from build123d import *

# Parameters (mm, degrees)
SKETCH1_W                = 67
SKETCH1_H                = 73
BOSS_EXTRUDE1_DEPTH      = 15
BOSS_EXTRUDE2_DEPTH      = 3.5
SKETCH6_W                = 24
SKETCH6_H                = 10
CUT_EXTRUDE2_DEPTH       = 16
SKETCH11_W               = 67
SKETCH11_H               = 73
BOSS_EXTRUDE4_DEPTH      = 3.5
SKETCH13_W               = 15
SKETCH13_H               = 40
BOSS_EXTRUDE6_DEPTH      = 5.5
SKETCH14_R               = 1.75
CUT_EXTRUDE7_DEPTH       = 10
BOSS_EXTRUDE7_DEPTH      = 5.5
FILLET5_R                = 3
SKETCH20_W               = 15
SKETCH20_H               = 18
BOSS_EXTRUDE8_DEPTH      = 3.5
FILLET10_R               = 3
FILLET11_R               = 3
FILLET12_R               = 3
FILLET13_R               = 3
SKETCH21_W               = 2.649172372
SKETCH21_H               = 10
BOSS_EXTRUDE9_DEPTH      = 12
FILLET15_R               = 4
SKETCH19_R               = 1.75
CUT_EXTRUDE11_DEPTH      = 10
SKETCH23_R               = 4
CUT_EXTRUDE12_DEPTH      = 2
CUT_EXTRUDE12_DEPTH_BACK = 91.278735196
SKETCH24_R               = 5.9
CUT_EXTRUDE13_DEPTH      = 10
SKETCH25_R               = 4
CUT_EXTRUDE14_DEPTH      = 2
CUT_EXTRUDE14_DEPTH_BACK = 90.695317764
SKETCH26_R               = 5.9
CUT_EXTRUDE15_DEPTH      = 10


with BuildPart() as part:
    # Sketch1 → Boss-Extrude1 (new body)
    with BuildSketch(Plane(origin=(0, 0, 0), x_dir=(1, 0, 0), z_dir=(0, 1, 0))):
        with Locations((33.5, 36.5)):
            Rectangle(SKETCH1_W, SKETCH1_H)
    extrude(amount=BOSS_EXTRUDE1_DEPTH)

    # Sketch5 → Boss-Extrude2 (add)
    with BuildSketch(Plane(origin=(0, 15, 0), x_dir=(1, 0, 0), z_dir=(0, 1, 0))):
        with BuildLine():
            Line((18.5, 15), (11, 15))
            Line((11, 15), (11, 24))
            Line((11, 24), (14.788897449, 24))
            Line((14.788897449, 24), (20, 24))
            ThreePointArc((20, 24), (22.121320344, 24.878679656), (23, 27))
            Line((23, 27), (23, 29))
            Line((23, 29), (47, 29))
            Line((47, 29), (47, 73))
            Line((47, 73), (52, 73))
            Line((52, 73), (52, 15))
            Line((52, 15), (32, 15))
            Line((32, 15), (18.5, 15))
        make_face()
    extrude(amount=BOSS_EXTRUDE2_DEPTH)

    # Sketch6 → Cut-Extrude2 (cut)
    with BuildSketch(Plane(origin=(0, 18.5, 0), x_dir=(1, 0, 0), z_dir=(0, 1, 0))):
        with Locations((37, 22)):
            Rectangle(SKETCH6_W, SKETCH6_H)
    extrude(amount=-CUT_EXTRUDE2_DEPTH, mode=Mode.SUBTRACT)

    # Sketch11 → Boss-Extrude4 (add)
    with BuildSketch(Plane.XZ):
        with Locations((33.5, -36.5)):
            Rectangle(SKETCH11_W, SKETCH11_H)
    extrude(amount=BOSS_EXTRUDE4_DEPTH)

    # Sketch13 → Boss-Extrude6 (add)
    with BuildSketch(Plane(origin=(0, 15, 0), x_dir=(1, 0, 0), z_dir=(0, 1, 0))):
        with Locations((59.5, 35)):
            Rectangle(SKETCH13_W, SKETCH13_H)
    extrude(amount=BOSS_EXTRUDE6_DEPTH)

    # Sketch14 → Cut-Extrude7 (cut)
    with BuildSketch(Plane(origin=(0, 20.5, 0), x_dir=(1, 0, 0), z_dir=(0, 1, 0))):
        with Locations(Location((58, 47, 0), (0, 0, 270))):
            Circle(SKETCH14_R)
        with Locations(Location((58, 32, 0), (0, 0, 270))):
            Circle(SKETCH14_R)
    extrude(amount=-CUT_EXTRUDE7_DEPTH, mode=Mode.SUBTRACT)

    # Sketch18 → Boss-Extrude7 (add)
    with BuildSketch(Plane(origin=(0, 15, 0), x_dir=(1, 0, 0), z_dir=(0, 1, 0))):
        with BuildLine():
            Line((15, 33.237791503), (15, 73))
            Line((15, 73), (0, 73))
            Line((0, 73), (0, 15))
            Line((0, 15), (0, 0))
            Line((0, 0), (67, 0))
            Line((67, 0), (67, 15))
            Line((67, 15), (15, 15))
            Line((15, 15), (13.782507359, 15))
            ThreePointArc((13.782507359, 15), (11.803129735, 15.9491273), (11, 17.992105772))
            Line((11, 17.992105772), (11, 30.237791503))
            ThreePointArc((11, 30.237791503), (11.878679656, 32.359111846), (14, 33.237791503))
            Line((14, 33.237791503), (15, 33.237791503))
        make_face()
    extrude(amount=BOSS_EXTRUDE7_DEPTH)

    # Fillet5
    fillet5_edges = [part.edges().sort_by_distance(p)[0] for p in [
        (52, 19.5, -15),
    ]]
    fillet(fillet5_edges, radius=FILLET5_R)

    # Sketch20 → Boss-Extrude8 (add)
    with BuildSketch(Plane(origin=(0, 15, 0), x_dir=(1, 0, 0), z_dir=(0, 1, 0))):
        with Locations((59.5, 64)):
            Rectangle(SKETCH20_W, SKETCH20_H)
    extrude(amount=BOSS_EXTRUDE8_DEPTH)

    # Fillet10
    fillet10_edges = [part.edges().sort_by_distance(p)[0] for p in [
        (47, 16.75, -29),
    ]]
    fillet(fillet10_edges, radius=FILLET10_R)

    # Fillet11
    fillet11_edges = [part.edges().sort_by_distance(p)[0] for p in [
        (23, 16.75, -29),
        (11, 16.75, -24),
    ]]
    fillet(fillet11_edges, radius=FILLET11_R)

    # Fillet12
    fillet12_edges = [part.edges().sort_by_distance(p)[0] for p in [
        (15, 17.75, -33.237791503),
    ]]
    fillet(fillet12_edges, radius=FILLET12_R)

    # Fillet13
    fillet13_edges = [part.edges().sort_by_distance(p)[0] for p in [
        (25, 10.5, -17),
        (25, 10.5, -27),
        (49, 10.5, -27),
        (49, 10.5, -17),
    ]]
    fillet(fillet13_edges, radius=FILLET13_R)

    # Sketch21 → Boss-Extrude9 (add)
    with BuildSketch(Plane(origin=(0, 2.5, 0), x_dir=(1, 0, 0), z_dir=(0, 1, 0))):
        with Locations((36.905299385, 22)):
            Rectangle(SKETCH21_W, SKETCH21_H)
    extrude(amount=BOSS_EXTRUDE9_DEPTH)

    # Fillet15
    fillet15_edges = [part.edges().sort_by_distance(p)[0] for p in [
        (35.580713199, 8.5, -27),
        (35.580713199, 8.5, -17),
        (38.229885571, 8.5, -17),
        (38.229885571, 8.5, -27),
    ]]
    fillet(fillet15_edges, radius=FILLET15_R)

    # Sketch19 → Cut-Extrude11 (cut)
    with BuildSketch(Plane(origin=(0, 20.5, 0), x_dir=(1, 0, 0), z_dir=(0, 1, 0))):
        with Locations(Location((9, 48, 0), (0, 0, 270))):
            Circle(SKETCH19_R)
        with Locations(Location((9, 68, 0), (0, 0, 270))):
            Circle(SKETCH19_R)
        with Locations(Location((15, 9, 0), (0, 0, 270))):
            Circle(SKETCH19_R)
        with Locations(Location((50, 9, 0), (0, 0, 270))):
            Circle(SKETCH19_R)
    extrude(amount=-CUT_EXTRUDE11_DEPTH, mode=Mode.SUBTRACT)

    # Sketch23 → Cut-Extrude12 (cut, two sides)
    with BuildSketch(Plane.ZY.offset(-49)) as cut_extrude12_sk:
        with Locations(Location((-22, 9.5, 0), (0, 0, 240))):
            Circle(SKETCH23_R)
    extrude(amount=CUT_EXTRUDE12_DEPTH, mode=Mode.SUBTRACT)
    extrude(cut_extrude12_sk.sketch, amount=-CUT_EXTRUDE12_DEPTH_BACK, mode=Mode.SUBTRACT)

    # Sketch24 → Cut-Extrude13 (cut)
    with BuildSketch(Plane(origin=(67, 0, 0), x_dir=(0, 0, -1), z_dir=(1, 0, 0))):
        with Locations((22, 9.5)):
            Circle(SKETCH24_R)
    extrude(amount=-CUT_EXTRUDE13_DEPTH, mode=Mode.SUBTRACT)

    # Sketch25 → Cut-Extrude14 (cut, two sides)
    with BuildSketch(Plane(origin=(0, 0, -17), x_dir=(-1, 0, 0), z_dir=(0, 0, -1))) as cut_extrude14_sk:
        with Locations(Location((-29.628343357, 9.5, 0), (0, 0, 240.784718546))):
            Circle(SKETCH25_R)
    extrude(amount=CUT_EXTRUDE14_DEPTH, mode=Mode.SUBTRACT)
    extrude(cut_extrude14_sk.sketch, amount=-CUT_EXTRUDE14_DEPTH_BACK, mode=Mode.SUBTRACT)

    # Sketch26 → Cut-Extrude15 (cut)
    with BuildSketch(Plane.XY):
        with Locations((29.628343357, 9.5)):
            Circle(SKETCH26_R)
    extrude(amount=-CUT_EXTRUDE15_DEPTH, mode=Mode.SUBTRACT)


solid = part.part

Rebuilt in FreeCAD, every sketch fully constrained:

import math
import FreeCAD as App
import Part
import Sketcher

V = App.Vector


def edges_at(feature, points):
    """Names of the edges that pass closest to the given points."""
    edges = feature.Shape.Edges
    near = lambda p: min(range(len(edges)), key=lambda i: edges[i].distToShape(Part.Vertex(*p))[0])
    return sorted({f"Edge{near(p) + 1}" for p in points})


def add_polygon(sketch, points):
    """Adds a closed chain of lines whose ends are joined by coincident constraints."""
    first, n = sketch.GeometryCount, len(points)
    for a, b in zip(points, points[1:] + points[:1]):
        sketch.addGeometry(Part.LineSegment(App.Vector(*a, 0), App.Vector(*b, 0)), False)
    for i in range(n):
        sketch.addConstraint(Sketcher.Constraint("Coincident", first + i, 2, first + (i + 1) % n, 1))

doc = App.newDocument("Part")
body = doc.addObject("PartDesign::Body", "Body")

# Sketch on XZ plane
sketch1 = body.newObject("Sketcher::SketchObject", "Sketch")
sketch1.AttachmentSupport = (doc.getObject("XZ_Plane"), [""])
sketch1.MapMode = "FlatFace"
add_polygon(sketch1, [(0, -73), (0, 0), (67, 0), (67, -73)])  # lines 0-3
sketch1.addConstraint([
    Sketcher.Constraint("Vertical", 0),
    Sketcher.Constraint("Horizontal", 1),
    Sketcher.Constraint("Vertical", 2),
    Sketcher.Constraint("Horizontal", 3),
    Sketcher.Constraint("Coincident", 0, 2, -1, 1),
    Sketcher.Constraint("DistanceX", 1, 1, 1, 2, 67.0),
    Sketcher.Constraint("DistanceY", 0, 1, 0, 2, 73.0),
])
pad1 = body.newObject("PartDesign::Pad", "Pad")
pad1.Profile = sketch1
pad1.Length = 15
pad1.Reversed = True

# Sketch on XZ plane
sketch2 = body.newObject("Sketcher::SketchObject", "Sketch001")
sketch2.AttachmentSupport = (doc.getObject("XZ_Plane"), [""])
sketch2.MapMode = "FlatFace"
sketch2.AttachmentOffset = App.Placement(V(0, 0, -15), App.Rotation())
sketch2.addGeometry([
    Part.LineSegment(V(11, -24, 0), V(11, -15, 0)),  # 0
    Part.LineSegment(V(11, -15, 0), V(52, -15, 0)),  # 1
    Part.LineSegment(V(52, -15, 0), V(52, -73, 0)),  # 2
    Part.LineSegment(V(52, -73, 0), V(47, -73, 0)),  # 3
    Part.LineSegment(V(47, -73, 0), V(47, -29, 0)),  # 4
    Part.LineSegment(V(47, -29, 0), V(23, -29, 0)),  # 5
    Part.LineSegment(V(23, -29, 0), V(23, -27, 0)),  # 6
    Part.ArcOfCircle(Part.Circle(V(20, -27, 0), V(0, 0, 1), 3), math.radians(0), math.radians(90)),  # 7
    Part.LineSegment(V(20, -24, 0), V(11, -24, 0)),  # 8
], False)
sketch2.addConstraint([
    Sketcher.Constraint("Coincident", 0, 2, 1, 1),
    Sketcher.Constraint("Coincident", 1, 2, 2, 1),
    Sketcher.Constraint("Coincident", 2, 2, 3, 1),
    Sketcher.Constraint("Coincident", 3, 2, 4, 1),
    Sketcher.Constraint("Coincident", 4, 2, 5, 1),
    Sketcher.Constraint("Coincident", 5, 2, 6, 1),
    Sketcher.Constraint("Tangent", 6, 2, 7, 1),
    Sketcher.Constraint("Tangent", 7, 2, 8, 1),
    Sketcher.Constraint("Coincident", 8, 2, 0, 1),
    Sketcher.Constraint("Vertical", 0),
    Sketcher.Constraint("Horizontal", 1),
    Sketcher.Constraint("Vertical", 2),
    Sketcher.Constraint("Horizontal", 3),
    Sketcher.Constraint("Vertical", 4),
    Sketcher.Constraint("Horizontal", 5),
    Sketcher.Constraint("Vertical", 6),
    Sketcher.Constraint("Horizontal", 8),
    Sketcher.Constraint("Equal", 8, 0),
    Sketcher.Constraint("Radius", 7, 3.0),
    Sketcher.Constraint("DistanceX", 1, 1, 1, 2, 41.0),
    Sketcher.Constraint("DistanceX", 3, 2, 3, 1, 5.0),
    Sketcher.Constraint("DistanceX", 5, 2, 5, 1, 24.0),
    Sketcher.Constraint("DistanceY", 2, 2, 2, 1, 58.0),
    Sketcher.Constraint("DistanceY", 4, 1, 4, 2, 44.0),
    Sketcher.Constraint("DistanceX", -1, 1, 7, 3, 20.0),
    Sketcher.Constraint("DistanceY", 7, 3, -1, 1, 27.0),
])
pad2 = body.newObject("PartDesign::Pad", "Pad001")
pad2.Profile = sketch2
pad2.Length = 3.5
pad2.Reversed = True

# Sketch on XZ plane
sketch3 = body.newObject("Sketcher::SketchObject", "Sketch002")
sketch3.AttachmentSupport = (doc.getObject("XZ_Plane"), [""])
sketch3.MapMode = "FlatFace"
sketch3.AttachmentOffset = App.Placement(V(0, 0, -18.5), App.Rotation())
add_polygon(sketch3, [(25, -27), (25, -17), (49, -17), (49, -27)])  # lines 0-3
sketch3.addConstraint([
    Sketcher.Constraint("Vertical", 0),
    Sketcher.Constraint("Horizontal", 1),
    Sketcher.Constraint("Vertical", 2),
    Sketcher.Constraint("Horizontal", 3),
    Sketcher.Constraint("DistanceX", 1, 1, 1, 2, 24.0),
    Sketcher.Constraint("DistanceY", 0, 1, 0, 2, 10.0),
    Sketcher.Constraint("DistanceX", -1, 1, 0, 2, 25.0),
    Sketcher.Constraint("DistanceY", 0, 2, -1, 1, 17.0),
])
pocket1 = body.newObject("PartDesign::Pocket", "Pocket")
pocket1.Profile = sketch3
pocket1.Length = 16
pocket1.Reversed = True

# Sketch on XZ plane
sketch4 = body.newObject("Sketcher::SketchObject", "Sketch003")
sketch4.AttachmentSupport = (doc.getObject("XZ_Plane"), [""])
sketch4.MapMode = "FlatFace"
add_polygon(sketch4, [(0, 0), (0, -73), (67, -73), (67, 0)])  # lines 0-3
sketch4.addConstraint([
    Sketcher.Constraint("Vertical", 0),
    Sketcher.Constraint("Horizontal", 1),
    Sketcher.Constraint("Vertical", 2),
    Sketcher.Constraint("Horizontal", 3),
    Sketcher.Constraint("Coincident", 3, 2, -1, 1),
    Sketcher.Constraint("DistanceX", 1, 1, 1, 2, 67.0),
    Sketcher.Constraint("DistanceY", 0, 2, 0, 1, 73.0),
])
pad3 = body.newObject("PartDesign::Pad", "Pad002")
pad3.Profile = sketch4
pad3.Length = 3.5

# Sketch on XZ plane
sketch5 = body.newObject("Sketcher::SketchObject", "Sketch004")
sketch5.AttachmentSupport = (doc.getObject("XZ_Plane"), [""])
sketch5.MapMode = "FlatFace"
sketch5.AttachmentOffset = App.Placement(V(0, 0, -15), App.Rotation())
add_polygon(sketch5, [(52, -55), (52, -15), (67, -15), (67, -55)])  # lines 0-3
sketch5.addConstraint([
    Sketcher.Constraint("Vertical", 0),
    Sketcher.Constraint("Horizontal", 1),
    Sketcher.Constraint("Vertical", 2),
    Sketcher.Constraint("Horizontal", 3),
    Sketcher.Constraint("DistanceX", 1, 1, 1, 2, 15.0),
    Sketcher.Constraint("DistanceY", 0, 1, 0, 2, 40.0),
    Sketcher.Constraint("DistanceX", -1, 1, 0, 2, 52.0),
    Sketcher.Constraint("DistanceY", 0, 2, -1, 1, 15.0),
])
pad4 = body.newObject("PartDesign::Pad", "Pad003")
pad4.Profile = sketch5
pad4.Length = 5.5
pad4.Reversed = True

# Sketch on XZ plane
sketch6 = body.newObject("Sketcher::SketchObject", "Sketch005")
sketch6.AttachmentSupport = (doc.getObject("XZ_Plane"), [""])
sketch6.MapMode = "FlatFace"
sketch6.AttachmentOffset = App.Placement(V(0, 0, -20.5), App.Rotation())
sketch6.addGeometry([
    Part.Circle(V(58, -47, 0), V(0, 0, 1), 1.8),
    Part.Circle(V(58, -32, 0), V(0, 0, 1), 1.8),
], False)
sketch6.addConstraint([
    Sketcher.Constraint("Equal", 0, 1),
    Sketcher.Constraint("Vertical", 0, 3, 1, 3),
    Sketcher.Constraint("Diameter", 0, 3.5),
    Sketcher.Constraint("DistanceX", -1, 1, 0, 3, 58.0),
    Sketcher.Constraint("DistanceY", 0, 3, -1, 1, 47.0),
    Sketcher.Constraint("DistanceY", 1, 3, -1, 1, 32.0),
])
pocket2 = body.newObject("PartDesign::Pocket", "Pocket001")
pocket2.Profile = sketch6
pocket2.Length = 10
pocket2.Reversed = True

# Sketch on XZ plane
sketch7 = body.newObject("Sketcher::SketchObject", "Sketch006")
sketch7.AttachmentSupport = (doc.getObject("XZ_Plane"), [""])
sketch7.MapMode = "FlatFace"
sketch7.AttachmentOffset = App.Placement(V(0, 0, -15), App.Rotation())
sketch7.addGeometry([
    Part.LineSegment(V(15, -33.2, 0), V(15, -73, 0)),  # 0
    Part.LineSegment(V(15, -73, 0), V(0, -73, 0)),  # 1
    Part.LineSegment(V(0, -73, 0), V(0, 0, 0)),  # 2
    Part.LineSegment(V(0, 0, 0), V(67, 0, 0)),  # 3
    Part.LineSegment(V(67, 0, 0), V(67, -15, 0)),  # 4
    Part.LineSegment(V(67, -15, 0), V(13.8, -15, 0)),  # 5
    Part.ArcOfCircle(Part.Circle(V(14, -18, 0), V(0, 0, 1), 3), math.radians(94), math.radians(180)),  # 6
    Part.LineSegment(V(11, -18, 0), V(11, -30.2, 0)),  # 7
    Part.ArcOfCircle(Part.Circle(V(14, -30.2, 0), V(0, 0, 1), 3), math.radians(180), math.radians(270)),  # 8
    Part.LineSegment(V(14, -33.2, 0), V(15, -33.2, 0)),  # 9
], False)
sketch7.addConstraint([
    Sketcher.Constraint("Coincident", 0, 2, 1, 1),
    Sketcher.Constraint("Coincident", 1, 2, 2, 1),
    Sketcher.Constraint("Coincident", 2, 2, 3, 1),
    Sketcher.Constraint("Coincident", 3, 2, 4, 1),
    Sketcher.Constraint("Coincident", 4, 2, 5, 1),
    Sketcher.Constraint("Coincident", 5, 2, 6, 1),
    Sketcher.Constraint("Tangent", 6, 2, 7, 1),
    Sketcher.Constraint("Tangent", 7, 2, 8, 1),
    Sketcher.Constraint("Tangent", 8, 2, 9, 1),
    Sketcher.Constraint("Coincident", 9, 2, 0, 1),
    Sketcher.Constraint("Vertical", 0),
    Sketcher.Constraint("Horizontal", 1),
    Sketcher.Constraint("Vertical", 2),
    Sketcher.Constraint("Horizontal", 3),
    Sketcher.Constraint("Vertical", 4),
    Sketcher.Constraint("Horizontal", 5),
    Sketcher.Constraint("Vertical", 7),
    Sketcher.Constraint("Horizontal", 9),
    Sketcher.Constraint("Coincident", 2, 2, -1, 1),
    Sketcher.Constraint("Equal", 6, 8),
    Sketcher.Constraint("Equal", 1, 4),
    Sketcher.Constraint("Radius", 6, 3.0),
    Sketcher.Constraint("DistanceX", 1, 2, 1, 1, 15.0),
    Sketcher.Constraint("DistanceX", 3, 1, 3, 2, 67.0),
    Sketcher.Constraint("DistanceX", 9, 1, 9, 2, 1.0),
    Sketcher.Constraint("DistanceY", 2, 1, 2, 2, 73.0),
    Sketcher.Constraint("DistanceY", 0, 2, 0, 1, 39.762208),
    Sketcher.Constraint("DistanceX", 5, 2, 5, 1, 53.217493),
])
pad5 = body.newObject("PartDesign::Pad", "Pad004")
pad5.Profile = sketch7
pad5.Length = 5.5
pad5.Reversed = True
doc.recompute()

fillet = body.newObject("PartDesign::Fillet", "Fillet")
fillet.Base = (pad5, edges_at(pad5, [(52, 19.5, -15)]))
fillet.Radius = 3

# Sketch on XZ plane
sketch8 = body.newObject("Sketcher::SketchObject", "Sketch007")
sketch8.AttachmentSupport = (doc.getObject("XZ_Plane"), [""])
sketch8.MapMode = "FlatFace"
sketch8.AttachmentOffset = App.Placement(V(0, 0, -15), App.Rotation())
add_polygon(sketch8, [(52, -73), (52, -55), (67, -55), (67, -73)])  # lines 0-3
sketch8.addConstraint([
    Sketcher.Constraint("Vertical", 0),
    Sketcher.Constraint("Horizontal", 1),
    Sketcher.Constraint("Vertical", 2),
    Sketcher.Constraint("Horizontal", 3),
    Sketcher.Constraint("DistanceX", 1, 1, 1, 2, 15.0),
    Sketcher.Constraint("DistanceY", 0, 1, 0, 2, 18.0),
    Sketcher.Constraint("DistanceX", -1, 1, 0, 2, 52.0),
    Sketcher.Constraint("DistanceY", 0, 2, -1, 1, 55.0),
])
pad6 = body.newObject("PartDesign::Pad", "Pad005")
pad6.Profile = sketch8
pad6.Length = 3.5
pad6.Reversed = True
doc.recompute()

fillet2 = body.newObject("PartDesign::Fillet", "Fillet001")
fillet2.Base = (pad6, edges_at(pad6, [(47, 16.75, -29)]))
fillet2.Radius = 3
doc.recompute()

fillet3 = body.newObject("PartDesign::Fillet", "Fillet002")
fillet3.Base = (fillet2, edges_at(fillet2, [(23, 16.75, -29), (11, 16.75, -24)]))
fillet3.Radius = 3
doc.recompute()

fillet4 = body.newObject("PartDesign::Fillet", "Fillet003")
fillet4.Base = (fillet3, edges_at(fillet3, [(15, 17.75, -33.238)]))
fillet4.Radius = 3
doc.recompute()

fillet5 = body.newObject("PartDesign::Fillet", "Fillet004")
fillet5.Base = (fillet4, edges_at(fillet4, [
    (25, 10.5, -17),
    (25, 10.5, -27),
    (49, 10.5, -27),
    (49, 10.5, -17),
]))
fillet5.Radius = 3

# Sketch on XZ plane
sketch9 = body.newObject("Sketcher::SketchObject", "Sketch008")
sketch9.AttachmentSupport = (doc.getObject("XZ_Plane"), [""])
sketch9.MapMode = "FlatFace"
sketch9.AttachmentOffset = App.Placement(V(0, 0, -2.5), App.Rotation())
add_polygon(sketch9, [(35.6, -27), (35.6, -17), (38.2, -17), (38.2, -27)])  # lines 0-3
sketch9.addConstraint([
    Sketcher.Constraint("Vertical", 0),
    Sketcher.Constraint("Horizontal", 1),
    Sketcher.Constraint("Vertical", 2),
    Sketcher.Constraint("Horizontal", 3),
    Sketcher.Constraint("DistanceY", 0, 1, 0, 2, 10.0),
    Sketcher.Constraint("DistanceY", 0, 2, -1, 1, 17.0),
    Sketcher.Constraint("DistanceX", 1, 1, 1, 2, 2.649172),
    Sketcher.Constraint("DistanceX", -1, 1, 0, 2, 35.580713),
])
pad7 = body.newObject("PartDesign::Pad", "Pad006")
pad7.Profile = sketch9
pad7.Length = 12
pad7.Reversed = True
doc.recompute()

fillet6 = body.newObject("PartDesign::Fillet", "Fillet005")
fillet6.Base = (pad7, edges_at(pad7, [
    (35.581, 8.5, -27),
    (35.581, 8.5, -17),
    (38.23, 8.5, -17),
    (38.23, 8.5, -27),
]))
fillet6.Radius = 4

# Sketch on XZ plane
sketch10 = body.newObject("Sketcher::SketchObject", "Sketch009")
sketch10.AttachmentSupport = (doc.getObject("XZ_Plane"), [""])
sketch10.MapMode = "FlatFace"
sketch10.AttachmentOffset = App.Placement(V(0, 0, -20.5), App.Rotation())
sketch10.addGeometry([
    Part.Circle(V(9, -48, 0), V(0, 0, 1), 1.8),
    Part.Circle(V(9, -68, 0), V(0, 0, 1), 1.8),
    Part.Circle(V(15, -9, 0), V(0, 0, 1), 1.8),
    Part.Circle(V(50, -9, 0), V(0, 0, 1), 1.8),
], False)
sketch10.addConstraint([
    Sketcher.Constraint("Equal", 0, 1),
    Sketcher.Constraint("Equal", 1, 2),
    Sketcher.Constraint("Equal", 2, 3),
    Sketcher.Constraint("Horizontal", 2, 3, 3, 3),
    Sketcher.Constraint("Vertical", 0, 3, 1, 3),
    Sketcher.Constraint("Diameter", 0, 3.5),
    Sketcher.Constraint("DistanceX", -1, 1, 0, 3, 9.0),
    Sketcher.Constraint("DistanceY", 0, 3, -1, 1, 48.0),
    Sketcher.Constraint("DistanceY", 1, 3, -1, 1, 68.0),
    Sketcher.Constraint("DistanceX", -1, 1, 2, 3, 15.0),
    Sketcher.Constraint("DistanceY", 2, 3, -1, 1, 9.0),
    Sketcher.Constraint("DistanceX", -1, 1, 3, 3, 50.0),
])
pocket3 = body.newObject("PartDesign::Pocket", "Pocket002")
pocket3.Profile = sketch10
pocket3.Length = 10
pocket3.Reversed = True

# Sketch on YZ plane
sketch11 = body.newObject("Sketcher::SketchObject", "Sketch010")
sketch11.AttachmentSupport = (doc.getObject("YZ_Plane"), [""])
sketch11.MapMode = "FlatFace"
sketch11.AttachmentOffset = App.Placement(V(0, 0, 49), App.Rotation())
sketch11.addGeometry(Part.Circle(V(9.5, -22, 0), V(0, 0, 1), 4), False)
sketch11.addConstraint([
    Sketcher.Constraint("Diameter", 0, 8.0),
    Sketcher.Constraint("DistanceY", 0, 3, -1, 1, 22.0),
    Sketcher.Constraint("DistanceX", -1, 1, 0, 3, 9.5),
])
pocket4 = body.newObject("PartDesign::Pocket", "Pocket003")
pocket4.Profile = sketch11
pocket4.Type = "TwoLengths"
pocket4.Length = 2
pocket4.Length2 = 91.278735

# Sketch on YZ plane
sketch12 = body.newObject("Sketcher::SketchObject", "Sketch011")
sketch12.AttachmentSupport = (doc.getObject("YZ_Plane"), [""])
sketch12.MapMode = "FlatFace"
sketch12.AttachmentOffset = App.Placement(V(0, 0, 67), App.Rotation())
sketch12.addGeometry(Part.Circle(V(10, -22, 0), V(0, 0, 1), 6), False)
sketch12.addConstraint([
    Sketcher.Constraint("Diameter", 0, 11.8),
    Sketcher.Constraint("DistanceY", 0, 3, -1, 1, 22.0),
    Sketcher.Constraint("DistanceX", -1, 1, 0, 3, 9.5),
])
pocket5 = body.newObject("PartDesign::Pocket", "Pocket004")
pocket5.Profile = sketch12
pocket5.Length = 10

# Sketch on XY plane
sketch13 = body.newObject("Sketcher::SketchObject", "Sketch012")
sketch13.AttachmentSupport = (doc.getObject("XY_Plane"), [""])
sketch13.MapMode = "FlatFace"
sketch13.AttachmentOffset = App.Placement(V(0, 0, -17), App.Rotation())
sketch13.addGeometry(Part.Circle(V(29.6, 9.5, 0), V(0, 0, 1), 4), False)
sketch13.addConstraint([
    Sketcher.Constraint("Diameter", 0, 8.0),
    Sketcher.Constraint("DistanceY", -1, 1, 0, 3, 9.5),
    Sketcher.Constraint("DistanceX", -1, 1, 0, 3, 29.628343),
])
pocket6 = body.newObject("PartDesign::Pocket", "Pocket005")
pocket6.Profile = sketch13
pocket6.Type = "TwoLengths"
pocket6.Length = 2
pocket6.Length2 = 90.695318

# Sketch on XY plane
sketch14 = body.newObject("Sketcher::SketchObject", "Sketch013")
sketch14.AttachmentSupport = (doc.getObject("XY_Plane"), [""])
sketch14.MapMode = "FlatFace"
sketch14.addGeometry(Part.Circle(V(30, 10, 0), V(0, 0, 1), 6), False)
sketch14.addConstraint([
    Sketcher.Constraint("Diameter", 0, 11.8),
    Sketcher.Constraint("DistanceY", -1, 1, 0, 3, 9.5),
    Sketcher.Constraint("DistanceX", -1, 1, 0, 3, 29.628343),
])
pocket7 = body.newObject("PartDesign::Pocket", "Pocket006")
pocket7.Profile = sketch14
pocket7.Length = 10

doc.recompute()
